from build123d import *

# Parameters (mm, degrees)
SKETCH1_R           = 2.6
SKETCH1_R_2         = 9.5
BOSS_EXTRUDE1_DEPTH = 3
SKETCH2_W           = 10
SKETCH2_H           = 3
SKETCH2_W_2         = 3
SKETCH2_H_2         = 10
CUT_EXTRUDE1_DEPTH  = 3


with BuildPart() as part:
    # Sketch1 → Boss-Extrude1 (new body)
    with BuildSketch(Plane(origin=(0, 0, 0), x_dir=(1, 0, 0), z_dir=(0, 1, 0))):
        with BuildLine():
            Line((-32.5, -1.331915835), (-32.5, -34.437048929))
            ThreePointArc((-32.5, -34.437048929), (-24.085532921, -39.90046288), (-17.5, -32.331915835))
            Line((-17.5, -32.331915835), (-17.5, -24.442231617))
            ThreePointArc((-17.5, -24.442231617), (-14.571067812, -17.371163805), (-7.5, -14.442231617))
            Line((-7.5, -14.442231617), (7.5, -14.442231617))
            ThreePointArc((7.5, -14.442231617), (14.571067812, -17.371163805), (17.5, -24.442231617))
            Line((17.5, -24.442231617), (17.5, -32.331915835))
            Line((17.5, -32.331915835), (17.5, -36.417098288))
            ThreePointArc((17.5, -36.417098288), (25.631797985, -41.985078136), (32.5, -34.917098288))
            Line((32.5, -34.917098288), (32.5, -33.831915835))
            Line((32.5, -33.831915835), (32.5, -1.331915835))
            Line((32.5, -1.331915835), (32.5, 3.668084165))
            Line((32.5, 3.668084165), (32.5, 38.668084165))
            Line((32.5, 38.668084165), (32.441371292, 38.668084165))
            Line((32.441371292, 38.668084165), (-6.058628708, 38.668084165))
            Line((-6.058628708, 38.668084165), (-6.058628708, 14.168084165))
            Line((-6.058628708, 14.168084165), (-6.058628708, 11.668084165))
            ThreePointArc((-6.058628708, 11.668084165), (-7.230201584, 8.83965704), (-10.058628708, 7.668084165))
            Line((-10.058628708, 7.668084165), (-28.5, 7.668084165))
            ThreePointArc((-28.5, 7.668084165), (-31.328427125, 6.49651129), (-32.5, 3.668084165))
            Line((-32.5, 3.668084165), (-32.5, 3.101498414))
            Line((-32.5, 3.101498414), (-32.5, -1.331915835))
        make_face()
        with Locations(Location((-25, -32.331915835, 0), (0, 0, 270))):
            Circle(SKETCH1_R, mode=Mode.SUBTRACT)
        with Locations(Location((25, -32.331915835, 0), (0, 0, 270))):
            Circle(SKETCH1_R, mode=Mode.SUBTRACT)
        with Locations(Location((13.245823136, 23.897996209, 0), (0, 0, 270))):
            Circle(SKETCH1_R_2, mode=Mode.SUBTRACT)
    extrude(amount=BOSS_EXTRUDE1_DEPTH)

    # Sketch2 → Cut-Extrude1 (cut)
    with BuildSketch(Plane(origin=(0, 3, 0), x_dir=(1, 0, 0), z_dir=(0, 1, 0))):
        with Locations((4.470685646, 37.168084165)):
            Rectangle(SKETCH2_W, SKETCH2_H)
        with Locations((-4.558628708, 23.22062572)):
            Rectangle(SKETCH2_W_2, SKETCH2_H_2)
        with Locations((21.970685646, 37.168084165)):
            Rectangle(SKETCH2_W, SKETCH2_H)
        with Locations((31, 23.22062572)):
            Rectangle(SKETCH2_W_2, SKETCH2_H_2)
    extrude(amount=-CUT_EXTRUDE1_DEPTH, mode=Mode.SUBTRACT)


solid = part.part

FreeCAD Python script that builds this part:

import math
import FreeCAD as App
import Part
import Sketcher

V = App.Vector


def add_polygon(sketch, points):
    """Adds a closed chain of lines whose ends are joined by coincident constraints."""
    first, n = sketch.GeometryCount, len(points)
    for a, b in zip(points, points[1:] + points[:1]):
        sketch.addGeometry(Part.LineSegment(App.Vector(*a, 0), App.Vector(*b, 0)), False)
    for i in range(n):
        sketch.addConstraint(Sketcher.Constraint("Coincident", first + i, 2, first + (i + 1) % n, 1))

doc = App.newDocument("Part")
body = doc.addObject("PartDesign::Body", "Body")

# Sketch on XZ plane
sketch1 = body.newObject("Sketcher::SketchObject", "Sketch")
sketch1.AttachmentSupport = (doc.getObject("XZ_Plane"), [""])
sketch1.MapMode = "FlatFace"
sketch1.addGeometry(Part.ArcOfCircle(Part.Circle(V(-25.1, 32.3, 0), V(0, 0, 1), 7.6), math.radians(0), math.radians(164)), False)
sketch1.addGeometry(Part.LineSegment(V(-17.5, 32.3, 0), V(-17.5, 24.4, 0)), False)
sketch1.addGeometry(Part.ArcOfCircle(Part.Circle(V(-7.5, 24.4, 0), V(0, 0, 1), 10), math.radians(180), math.radians(270)), False)
sketch1.addGeometry(Part.LineSegment(V(-7.5, 14.4, 0), V(7.5, 14.4, 0)), False)
sketch1.addGeometry(Part.ArcOfCircle(Part.Circle(V(7.5, 24.4, 0), V(0, 0, 1), 10), math.radians(-90), math.radians(0)), False)
sketch1.addGeometry(Part.LineSegment(V(17.5, 24.4, 0), V(17.5, 36.4, 0)), False)
sketch1.addGeometry(Part.ArcOfCircle(Part.Circle(V(24.9, 34.4, 0), V(0, 0, 1), 7.6), math.radians(4), math.radians(165)), False)
sketch1.addGeometry(Part.LineSegment(V(32.5, 34.9, 0), V(32.5, -38.7, 0)), False)
sketch1.addGeometry(Part.LineSegment(V(32.5, -38.7, 0), V(-6.1, -38.7, 0)), False)
sketch1.addGeometry(Part.LineSegment(V(-6.1, -38.7, 0), V(-6.1, -11.7, 0)), False)
sketch1.addGeometry(Part.ArcOfCircle(Part.Circle(V(-10.1, -11.7, 0), V(0, 0, 1), 4), math.radians(0), math.radians(90)), False)
sketch1.addGeometry(Part.LineSegment(V(-10.1, -7.7, 0), V(-28.5, -7.7, 0)), False)
sketch1.addGeometry(Part.ArcOfCircle(Part.Circle(V(-28.5, -3.7, 0), V(0, 0, 1), 4), math.radians(180), math.radians(270)), False)
sketch1.addGeometry(Part.LineSegment(V(-32.5, -3.7, 0), V(-32.5, 34.4, 0)), False)
sketch1.addGeometry(Part.Circle(V(-25, 32.3, 0), V(0, 0, 1), 2.6), False)
sketch1.addGeometry(Part.Circle(V(25, 32.3, 0), V(0, 0, 1), 2.6), False)
sketch1.addGeometry(Part.Circle(V(13.2, -23.9, 0), V(0, 0, 1), 9.5), False)
sketch1.addConstraint(Sketcher.Constraint("Coincident", 0, 1, 1, 1))
sketch1.addConstraint(Sketcher.Constraint("Tangent", 1, 2, 2, 1))
sketch1.addConstraint(Sketcher.Constraint("Tangent", 2, 2, 3, 1))
sketch1.addConstraint(Sketcher.Constraint("Tangent", 3, 2, 4, 1))
sketch1.addConstraint(Sketcher.Constraint("Tangent", 4, 2, 5, 1))
sketch1.addConstraint(Sketcher.Constraint("Coincident", 5, 2, 6, 2))
sketch1.addConstraint(Sketcher.Constraint("Coincident", 6, 1, 7, 1))
sketch1.addConstraint(Sketcher.Constraint("Coincident", 7, 2, 8, 1))
sketch1.addConstraint(Sketcher.Constraint("Coincident", 8, 2, 9, 1))
sketch1.addConstraint(Sketcher.Constraint("Tangent", 9, 2, 10, 1))
sketch1.addConstraint(Sketcher.Constraint("Tangent", 10, 2, 11, 1))
sketch1.addConstraint(Sketcher.Constraint("Tangent", 11, 2, 12, 2))
sketch1.addConstraint(Sketcher.Constraint("Tangent", 12, 1, 13, 1))
sketch1.addConstraint(Sketcher.Constraint("Coincident", 13, 2, 0, 2))
sketch1.addConstraint(Sketcher.Constraint("Vertical", 1))
sketch1.addConstraint(Sketcher.Constraint("Horizontal", 3))
sketch1.addConstraint(Sketcher.Constraint("Vertical", 5))
sketch1.addConstraint(Sketcher.Constraint("Vertical", 7))
sketch1.addConstraint(Sketcher.Constraint("Horizontal", 8))
sketch1.addConstraint(Sketcher.Constraint("Vertical", 9))
sketch1.addConstraint(Sketcher.Constraint("Horizontal", 11))
sketch1.addConstraint(Sketcher.Constraint("Vertical", 13))
sketch1.addConstraint(Sketcher.Constraint("Equal", 2, 4))
sketch1.addConstraint(Sketcher.Constraint("Equal", 0, 6))
sketch1.addConstraint(Sketcher.Constraint("Equal", 10, 12))
sketch1.addConstraint(Sketcher.Constraint("Equal", 14, 15))
sketch1.addConstraint(Sketcher.Constraint("Symmetric", 14, 3, 15, 3, -2))
sketch1.addConstraint(Sketcher.Constraint("Horizontal", 15, 3, 0, 1))
sketch1.addConstraint(Sketcher.Constraint("Diameter", 16, 19.0))
sketch1.addConstraint(Sketcher.Constraint("Radius", 2, 10.0))
sketch1.addConstraint(Sketcher.Constraint("Radius", 10, 4.0))
sketch1.addConstraint(Sketcher.Constraint("Diameter", 14, 5.2))
sketch1.addConstraint(Sketcher.Constraint("DistanceX", 3, 1, 3, 2, 15.0))
sketch1.addConstraint(Sketcher.Constraint("DistanceY", 9, 1, 9, 2, 27.0))
sketch1.addConstraint(Sketcher.Constraint("DistanceX", 14, 3, -1, 1, 25.0))
sketch1.addConstraint(Sketcher.Constraint("DistanceX", 12, 3, 2, 3, 21.0))
sketch1.addConstraint(Sketcher.Constraint("DistanceY", 12, 3, 14, 3, 36.0))
sketch1.addConstraint(Sketcher.Constraint("DistanceX", 5, 2, 6, 1, 15.0))
sketch1.addConstraint(Sketcher.Constraint("DistanceX", 2, 3, -1, 1, 7.5))
sketch1.addConstraint(Sketcher.Constraint("DistanceY", 6, 1, 5, 2, 1.5))
sketch1.addConstraint(Sketcher.Constraint("Radius", 0, 7.648529))
sketch1.addConstraint(Sketcher.Constraint("DistanceX", 8, 2, 8, 1, 38.558629))
sketch1.addConstraint(Sketcher.Constraint("DistanceY", -1, 1, 5, 2, 36.417098))
sketch1.addConstraint(Sketcher.Constraint("DistanceY", 1, 2, 1, 1, 7.889684))
sketch1.addConstraint(Sketcher.Constraint("DistanceY", 5, 1, 5, 2, 11.974867))
sketch1.addConstraint(Sketcher.Constraint("DistanceY", 13, 1, 13, 2, 38.105133))
sketch1.addConstraint(Sketcher.Constraint("DistanceX", 10, 3, 16, 3, 23.304452))
sketch1.addConstraint(Sketcher.Constraint("DistanceY", 16, 3, -1, 1, 23.897996))
pad1 = body.newObject("PartDesign::Pad", "Pad")
pad1.Profile = sketch1
pad1.Length = 3
pad1.Reversed = True

# Sketch on XZ plane
sketch2 = body.newObject("Sketcher::SketchObject", "Sketch001")
sketch2.AttachmentSupport = (doc.getObject("XZ_Plane"), [""])
sketch2.MapMode = "FlatFace"
sketch2.AttachmentOffset = App.Placement(V(0, 0, -3), App.Rotation())
add_polygon(sketch2, [(-0.5, -38.7), (-0.5, -35.7), (9.5, -35.7), (9.5, -38.7)])  # lines 0-3
add_polygon(sketch2, [(-6.1, -28.2), (-6.1, -18.2), (-3.1, -18.2), (-3.1, -28.2)])  # lines 4-7
add_polygon(sketch2, [(17, -38.7), (17, -35.7), (27, -35.7), (27, -38.7)])  # lines 8-11
add_polygon(sketch2, [(29.5, -28.2), (29.5, -18.2), (32.5, -18.2), (32.5, -28.2)])  # lines 12-15
sketch2.addConstraint(Sketcher.Constraint("Vertical", 0))
sketch2.addConstraint(Sketcher.Constraint("Horizontal", 1))
sketch2.addConstraint(Sketcher.Constraint("Vertical", 2))
sketch2.addConstraint(Sketcher.Constraint("Horizontal", 3))
sketch2.addConstraint(Sketcher.Constraint("Vertical", 4))
sketch2.addConstraint(Sketcher.Constraint("Horizontal", 5))
sketch2.addConstraint(Sketcher.Constraint("Vertical", 6))
sketch2.addConstraint(Sketcher.Constraint("Horizontal", 7))
sketch2.addConstraint(Sketcher.Constraint("Vertical", 8))
sketch2.addConstraint(Sketcher.Constraint("Horizontal", 9))
sketch2.addConstraint(Sketcher.Constraint("Vertical", 10))
sketch2.addConstraint(Sketcher.Constraint("Horizontal", 11))
sketch2.addConstraint(Sketcher.Constraint("Vertical", 12))
sketch2.addConstraint(Sketcher.Constraint("Horizontal", 13))
sketch2.addConstraint(Sketcher.Constraint("Vertical", 14))
sketch2.addConstraint(Sketcher.Constraint("Horizontal", 15))
sketch2.addConstraint(Sketcher.Constraint("Horizontal", 1, 2, 8, 2))
sketch2.addConstraint(Sketcher.Constraint("Horizontal", 3, 2, 10, 2))
sketch2.addConstraint(Sketcher.Constraint("Horizontal", 5, 2, 12, 2))
sketch2.addConstraint(Sketcher.Constraint("Horizontal", 7, 2, 14, 2))
sketch2.addConstraint(Sketcher.Constraint("Equal", 3, 9))
sketch2.addConstraint(Sketcher.Constraint("Equal", 7, 13))
sketch2.addConstraint(Sketcher.Constraint("Equal", 15, 0))
sketch2.addConstraint(Sketcher.Constraint("Equal", 11, 4))
sketch2.addConstraint(Sketcher.Constraint("DistanceX", 1, 1, 1, 2, 10.0))
sketch2.addConstraint(Sketcher.Constraint("DistanceX", 5, 1, 5, 2, 3.0))
sketch2.addConstraint(Sketcher.Constraint("DistanceX", -1, 1, 12, 2, 29.5))
sketch2.addConstraint(Sketcher.Constraint("DistanceX", 1, 2, 8, 2, 7.5))
sketch2.addConstraint(Sketcher.Constraint("DistanceX", 4, 2, -1, 1, 6.058629))
sketch2.addConstraint(Sketcher.Constraint("DistanceY", 0, 2, 4, 2, 17.447458))
sketch2.addConstraint(Sketcher.Constraint("DistanceX", 0, 2, -1, 1, 0.529314))
sketch2.addConstraint(Sketcher.Constraint("DistanceY", 0, 2, -1, 1, 35.668084))
pocket1 = body.newObject("PartDesign::Pocket", "Pocket")
pocket1.Profile = sketch2
pocket1.Length = 3
pocket1.Reversed = True

doc.recompute()
